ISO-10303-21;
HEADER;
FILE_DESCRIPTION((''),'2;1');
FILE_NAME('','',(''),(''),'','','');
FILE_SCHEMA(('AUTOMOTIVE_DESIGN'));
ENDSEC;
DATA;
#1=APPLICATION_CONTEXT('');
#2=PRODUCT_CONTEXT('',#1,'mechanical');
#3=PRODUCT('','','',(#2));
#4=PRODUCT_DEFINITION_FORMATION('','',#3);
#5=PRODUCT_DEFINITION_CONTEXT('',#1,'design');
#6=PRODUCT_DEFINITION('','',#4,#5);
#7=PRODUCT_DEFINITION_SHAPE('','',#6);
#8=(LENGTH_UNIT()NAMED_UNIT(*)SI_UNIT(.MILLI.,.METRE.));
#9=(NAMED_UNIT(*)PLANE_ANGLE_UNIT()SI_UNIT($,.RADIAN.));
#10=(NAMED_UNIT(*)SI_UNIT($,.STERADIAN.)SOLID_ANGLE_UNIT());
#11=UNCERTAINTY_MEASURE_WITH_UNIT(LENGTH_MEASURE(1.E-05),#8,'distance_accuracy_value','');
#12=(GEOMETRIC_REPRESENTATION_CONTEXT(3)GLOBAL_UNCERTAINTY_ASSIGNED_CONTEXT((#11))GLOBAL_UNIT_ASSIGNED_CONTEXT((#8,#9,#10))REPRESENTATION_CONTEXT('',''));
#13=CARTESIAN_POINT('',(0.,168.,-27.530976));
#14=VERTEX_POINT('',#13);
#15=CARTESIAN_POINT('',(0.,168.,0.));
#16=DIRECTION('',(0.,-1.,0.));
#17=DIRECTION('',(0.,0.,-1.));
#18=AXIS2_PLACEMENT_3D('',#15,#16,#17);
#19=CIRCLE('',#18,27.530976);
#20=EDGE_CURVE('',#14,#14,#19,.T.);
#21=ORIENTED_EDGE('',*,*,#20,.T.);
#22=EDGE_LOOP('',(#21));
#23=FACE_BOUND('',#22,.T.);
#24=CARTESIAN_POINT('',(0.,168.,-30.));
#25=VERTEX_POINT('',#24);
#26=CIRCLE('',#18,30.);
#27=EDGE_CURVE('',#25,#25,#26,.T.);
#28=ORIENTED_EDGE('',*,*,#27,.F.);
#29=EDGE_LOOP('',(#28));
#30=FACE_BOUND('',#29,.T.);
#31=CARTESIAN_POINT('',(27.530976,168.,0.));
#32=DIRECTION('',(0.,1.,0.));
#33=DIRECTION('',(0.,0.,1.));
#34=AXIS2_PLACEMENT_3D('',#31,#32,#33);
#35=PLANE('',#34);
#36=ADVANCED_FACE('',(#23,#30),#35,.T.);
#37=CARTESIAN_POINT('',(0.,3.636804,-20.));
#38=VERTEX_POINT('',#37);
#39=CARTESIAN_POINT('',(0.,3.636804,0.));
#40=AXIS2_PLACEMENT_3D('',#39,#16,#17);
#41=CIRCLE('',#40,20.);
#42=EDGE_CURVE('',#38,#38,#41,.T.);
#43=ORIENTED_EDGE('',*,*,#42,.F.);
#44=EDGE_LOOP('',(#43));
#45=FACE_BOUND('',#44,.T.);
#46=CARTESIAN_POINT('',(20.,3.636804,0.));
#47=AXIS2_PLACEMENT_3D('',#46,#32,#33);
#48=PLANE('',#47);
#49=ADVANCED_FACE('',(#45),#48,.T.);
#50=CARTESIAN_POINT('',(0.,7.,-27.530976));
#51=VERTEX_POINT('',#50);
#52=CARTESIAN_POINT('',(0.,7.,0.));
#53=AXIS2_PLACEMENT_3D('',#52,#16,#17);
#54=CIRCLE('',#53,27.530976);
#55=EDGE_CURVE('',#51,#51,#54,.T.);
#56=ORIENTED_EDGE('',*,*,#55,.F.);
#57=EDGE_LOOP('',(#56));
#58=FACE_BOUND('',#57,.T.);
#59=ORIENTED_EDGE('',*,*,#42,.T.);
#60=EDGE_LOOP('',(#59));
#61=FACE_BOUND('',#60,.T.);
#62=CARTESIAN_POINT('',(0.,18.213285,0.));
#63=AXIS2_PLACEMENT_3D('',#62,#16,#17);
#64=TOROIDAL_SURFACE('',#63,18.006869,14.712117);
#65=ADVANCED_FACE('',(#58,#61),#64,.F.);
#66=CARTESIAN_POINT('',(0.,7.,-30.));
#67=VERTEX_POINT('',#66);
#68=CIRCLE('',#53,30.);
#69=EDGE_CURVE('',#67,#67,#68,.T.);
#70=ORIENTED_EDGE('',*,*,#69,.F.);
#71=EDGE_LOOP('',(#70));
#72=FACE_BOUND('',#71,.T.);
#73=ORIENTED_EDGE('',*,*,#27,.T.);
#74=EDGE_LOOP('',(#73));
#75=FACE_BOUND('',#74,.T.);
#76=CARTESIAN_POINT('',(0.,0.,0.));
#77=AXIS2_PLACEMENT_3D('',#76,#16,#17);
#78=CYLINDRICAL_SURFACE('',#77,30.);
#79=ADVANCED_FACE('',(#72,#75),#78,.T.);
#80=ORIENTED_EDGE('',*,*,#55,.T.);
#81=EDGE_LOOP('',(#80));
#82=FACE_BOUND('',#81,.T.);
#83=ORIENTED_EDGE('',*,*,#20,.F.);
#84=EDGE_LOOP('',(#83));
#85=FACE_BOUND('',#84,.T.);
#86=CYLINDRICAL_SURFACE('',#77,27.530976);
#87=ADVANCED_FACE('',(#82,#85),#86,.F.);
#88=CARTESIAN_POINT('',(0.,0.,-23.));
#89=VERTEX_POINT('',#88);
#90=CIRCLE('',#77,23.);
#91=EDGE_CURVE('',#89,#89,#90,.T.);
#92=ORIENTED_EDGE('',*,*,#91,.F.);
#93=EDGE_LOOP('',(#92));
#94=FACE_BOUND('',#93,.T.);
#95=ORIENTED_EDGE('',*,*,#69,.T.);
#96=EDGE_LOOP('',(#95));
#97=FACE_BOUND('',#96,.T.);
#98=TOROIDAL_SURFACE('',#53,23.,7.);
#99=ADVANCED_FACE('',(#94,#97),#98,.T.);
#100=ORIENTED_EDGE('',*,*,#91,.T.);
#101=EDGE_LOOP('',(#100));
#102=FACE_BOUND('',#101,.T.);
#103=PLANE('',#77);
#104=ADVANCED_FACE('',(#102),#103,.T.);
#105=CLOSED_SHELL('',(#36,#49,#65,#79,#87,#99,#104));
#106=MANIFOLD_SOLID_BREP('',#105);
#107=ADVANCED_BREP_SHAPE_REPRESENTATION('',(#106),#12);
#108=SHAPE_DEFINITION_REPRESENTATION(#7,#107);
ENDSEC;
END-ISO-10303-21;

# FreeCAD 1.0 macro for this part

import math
import FreeCAD as App
import Part
import Sketcher
from FreeCAD import Vector
Q = App.Units.Quantity

doc = App.newDocument("Part")
body = doc.addObject("PartDesign::Body", "Body")

sketch1 = doc.addObject("Sketcher::SketchObject", "Sketch")
body.addObject(sketch1)
sketch1.AttachmentSupport = (doc.XY_Plane, [""])
sketch1.MapMode = "FlatFace"
sketch1.addGeometry([
    Part.LineSegment(Vector(27.530976, 168, 0), Vector(27.530976, 7, 0)),
    Part.ArcOfCircle(Part.Circle(Vector(18.006869, 18.213285, 0), Vector(0, 0, 1), 14.712117), math.radians(-82.213884), math.radians(-49.656783)),
    Part.LineSegment(Vector(20, 3.636804, 0), Vector(0, 3.636804, 0)),
    Part.LineSegment(Vector(0, 3.636804, 0), Vector(0, 0, 0)),
    Part.LineSegment(Vector(0, 0, 0), Vector(23, 0, 0)),
    Part.ArcOfCircle(Part.Circle(Vector(23, 7, 0), Vector(0, 0, 1), 7), math.radians(-90), math.radians(0)),
    Part.LineSegment(Vector(30, 7, 0), Vector(30, 168, 0)),
    Part.LineSegment(Vector(30, 168, 0), Vector(27.530976, 168, 0)),
], False)
sketch1.addConstraint([
    Sketcher.Constraint("Coincident", 0, 2, 1, 2),
    Sketcher.Constraint("Coincident", 1, 1, 2, 1),
    Sketcher.Constraint("Coincident", 2, 2, 3, 1),
    Sketcher.Constraint("Coincident", 3, 2, 4, 1),
    Sketcher.Constraint("Tangent", 4, 2, 5, 1),
    Sketcher.Constraint("Tangent", 5, 2, 6, 1),
    Sketcher.Constraint("Coincident", 6, 2, 7, 1),
    Sketcher.Constraint("Coincident", 7, 2, 0, 1),
    Sketcher.Constraint("Vertical", 0),
    Sketcher.Constraint("Horizontal", 2),
    Sketcher.Constraint("Vertical", 3),
    Sketcher.Constraint("Horizontal", 4),
    Sketcher.Constraint("Vertical", 6),
    Sketcher.Constraint("Horizontal", 7),
    Sketcher.Constraint("Coincident", 3, 2, -1, 1),
    Sketcher.Constraint("Horizontal", 5, 3, 0, 2),
    Sketcher.Constraint("Radius", 5, Q("7 mm")),
    Sketcher.Constraint("DistanceX", 2, 2, 2, 1, Q("20 mm")),
    Sketcher.Constraint("DistanceX", 4, 1, 4, 2, Q("23 mm")),
    Sketcher.Constraint("DistanceY", 0, 2, 0, 1, Q("161 mm")),
    Sketcher.Constraint("Radius", 1, Q("14.712117 mm")),
    Sketcher.Constraint("DistanceX", 7, 2, 7, 1, Q("2.469024 mm")),
    Sketcher.Constraint("DistanceY", 3, 2, 3, 1, Q("3.636804 mm")),
])
revolution = doc.addObject("PartDesign::Revolution", "Revolution")
body.addObject(revolution)
revolution.Profile = sketch1
revolution.ReferenceAxis = (sketch1, ["V_Axis"])
revolution.Angle = 360

doc.recompute()
